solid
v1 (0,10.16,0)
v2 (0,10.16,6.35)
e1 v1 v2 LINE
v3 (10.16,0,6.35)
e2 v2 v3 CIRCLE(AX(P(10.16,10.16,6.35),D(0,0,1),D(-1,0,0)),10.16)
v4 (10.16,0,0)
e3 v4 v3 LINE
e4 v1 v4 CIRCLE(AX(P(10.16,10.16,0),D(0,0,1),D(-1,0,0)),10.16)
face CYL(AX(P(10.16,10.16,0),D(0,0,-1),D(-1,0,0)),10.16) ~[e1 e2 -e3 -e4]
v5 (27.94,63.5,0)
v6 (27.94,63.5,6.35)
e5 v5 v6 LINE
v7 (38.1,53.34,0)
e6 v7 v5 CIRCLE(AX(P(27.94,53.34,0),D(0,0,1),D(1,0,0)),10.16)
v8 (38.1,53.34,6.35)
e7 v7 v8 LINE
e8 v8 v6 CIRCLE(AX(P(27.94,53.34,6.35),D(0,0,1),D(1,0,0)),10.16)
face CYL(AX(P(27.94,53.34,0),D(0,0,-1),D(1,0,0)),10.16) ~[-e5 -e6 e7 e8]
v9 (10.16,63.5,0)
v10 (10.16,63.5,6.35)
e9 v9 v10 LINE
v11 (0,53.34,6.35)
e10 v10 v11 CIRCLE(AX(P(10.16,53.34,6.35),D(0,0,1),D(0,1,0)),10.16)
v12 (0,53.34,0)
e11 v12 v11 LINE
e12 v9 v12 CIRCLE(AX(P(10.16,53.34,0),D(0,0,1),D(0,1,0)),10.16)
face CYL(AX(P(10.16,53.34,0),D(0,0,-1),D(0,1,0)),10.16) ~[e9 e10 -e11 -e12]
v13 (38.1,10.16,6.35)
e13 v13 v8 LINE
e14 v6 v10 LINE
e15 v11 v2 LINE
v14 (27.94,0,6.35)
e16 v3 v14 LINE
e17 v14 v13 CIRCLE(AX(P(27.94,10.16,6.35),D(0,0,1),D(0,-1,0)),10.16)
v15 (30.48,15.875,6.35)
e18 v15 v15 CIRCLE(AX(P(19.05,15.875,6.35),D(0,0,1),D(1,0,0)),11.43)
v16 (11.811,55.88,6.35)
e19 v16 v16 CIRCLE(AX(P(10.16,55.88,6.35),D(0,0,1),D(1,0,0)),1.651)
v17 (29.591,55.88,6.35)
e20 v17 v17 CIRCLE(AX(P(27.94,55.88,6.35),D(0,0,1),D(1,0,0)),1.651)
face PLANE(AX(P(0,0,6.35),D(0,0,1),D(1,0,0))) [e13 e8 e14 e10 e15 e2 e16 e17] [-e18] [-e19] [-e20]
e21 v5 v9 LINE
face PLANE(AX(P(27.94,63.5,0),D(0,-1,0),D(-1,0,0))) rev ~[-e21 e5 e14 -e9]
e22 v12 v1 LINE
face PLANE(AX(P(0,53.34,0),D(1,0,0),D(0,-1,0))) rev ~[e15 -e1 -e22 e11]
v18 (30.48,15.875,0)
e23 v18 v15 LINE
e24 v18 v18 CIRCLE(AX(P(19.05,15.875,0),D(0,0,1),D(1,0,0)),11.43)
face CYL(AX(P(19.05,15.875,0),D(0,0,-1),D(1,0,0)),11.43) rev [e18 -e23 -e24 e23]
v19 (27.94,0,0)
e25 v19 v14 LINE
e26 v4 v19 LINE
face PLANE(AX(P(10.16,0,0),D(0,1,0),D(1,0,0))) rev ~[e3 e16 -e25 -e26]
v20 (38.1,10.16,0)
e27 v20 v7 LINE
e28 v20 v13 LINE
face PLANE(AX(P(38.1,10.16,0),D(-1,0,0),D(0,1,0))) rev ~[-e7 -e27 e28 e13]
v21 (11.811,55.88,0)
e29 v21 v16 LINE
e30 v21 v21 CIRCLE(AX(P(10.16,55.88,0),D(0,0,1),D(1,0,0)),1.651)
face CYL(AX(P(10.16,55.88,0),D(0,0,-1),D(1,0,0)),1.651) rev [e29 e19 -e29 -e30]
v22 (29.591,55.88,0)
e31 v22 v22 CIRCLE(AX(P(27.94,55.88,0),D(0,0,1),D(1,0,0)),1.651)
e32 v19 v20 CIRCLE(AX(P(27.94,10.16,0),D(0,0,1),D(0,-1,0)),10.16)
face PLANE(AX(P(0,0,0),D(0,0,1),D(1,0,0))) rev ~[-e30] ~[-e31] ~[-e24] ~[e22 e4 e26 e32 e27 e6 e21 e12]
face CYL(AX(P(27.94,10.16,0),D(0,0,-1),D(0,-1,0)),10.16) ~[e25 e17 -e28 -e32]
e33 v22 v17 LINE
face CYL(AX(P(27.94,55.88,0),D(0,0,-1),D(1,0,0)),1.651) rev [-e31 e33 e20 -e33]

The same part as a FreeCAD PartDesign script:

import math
import FreeCAD as App
import Part
import Sketcher

V = App.Vector
Q = App.Units.Quantity

doc = App.newDocument("Part")
body = doc.addObject("PartDesign::Body", "Body")

sketch1 = body.newObject("Sketcher::SketchObject", "Sketch")
sketch1.AttachmentSupport = (doc.getObject("XY_Plane"), [""])
sketch1.MapMode = "FlatFace"
sketch1.addGeometry(Part.ArcOfCircle(Part.Circle(V(10.2, 10.2, 0), V(0, 0, 1), 10.2), math.radians(180), math.radians(270)), False)
sketch1.addGeometry(Part.LineSegment(V(10.2, 0, 0), V(27.9, 0, 0)), False)
sketch1.addGeometry(Part.ArcOfCircle(Part.Circle(V(27.9, 10.2, 0), V(0, 0, 1), 10.2), math.radians(-90), math.radians(0)), False)
sketch1.addGeometry(Part.LineSegment(V(38.1, 10.2, 0), V(38.1, 53.3, 0)), False)
sketch1.addGeometry(Part.ArcOfCircle(Part.Circle(V(27.9, 53.3, 0), V(0, 0, 1), 10.2), math.radians(0), math.radians(90)), False)
sketch1.addGeometry(Part.LineSegment(V(27.9, 63.5, 0), V(10.2, 63.5, 0)), False)
sketch1.addGeometry(Part.ArcOfCircle(Part.Circle(V(10.2, 53.3, 0), V(0, 0, 1), 10.2), math.radians(90), math.radians(180)), False)
sketch1.addGeometry(Part.LineSegment(V(0, 53.3, 0), V(0, 10.2, 0)), False)
sketch1.addGeometry(Part.Circle(V(19.1, 15.9, 0), V(0, 0, 1), 11.4), False)
sketch1.addGeometry(Part.Circle(V(10.2, 55.9, 0), V(0, 0, 1), 1.7), False)
sketch1.addGeometry(Part.Circle(V(27.9, 55.9, 0), V(0, 0, 1), 1.7), False)
sketch1.addConstraint(Sketcher.Constraint("Tangent", 0, 2, 1, 1))
sketch1.addConstraint(Sketcher.Constraint("Tangent", 1, 2, 2, 1))
sketch1.addConstraint(Sketcher.Constraint("Tangent", 2, 2, 3, 1))
sketch1.addConstraint(Sketcher.Constraint("Tangent", 3, 2, 4, 1))
sketch1.addConstraint(Sketcher.Constraint("Tangent", 4, 2, 5, 1))
sketch1.addConstraint(Sketcher.Constraint("Tangent", 5, 2, 6, 1))
sketch1.addConstraint(Sketcher.Constraint("Tangent", 6, 2, 7, 1))
sketch1.addConstraint(Sketcher.Constraint("Tangent", 7, 2, 0, 1))
sketch1.addConstraint(Sketcher.Constraint("Horizontal", 1))
sketch1.addConstraint(Sketcher.Constraint("Vertical", 3))
sketch1.addConstraint(Sketcher.Constraint("Horizontal", 5))
sketch1.addConstraint(Sketcher.Constraint("Vertical", 7))
sketch1.addConstraint(Sketcher.Constraint("Equal", 0, 2))
sketch1.addConstraint(Sketcher.Constraint("Equal", 2, 4))
sketch1.addConstraint(Sketcher.Constraint("Equal", 4, 6))
sketch1.addConstraint(Sketcher.Constraint("Equal", 9, 10))
sketch1.addConstraint(Sketcher.Constraint("PointOnObject", 0, 2, -1))
sketch1.addConstraint(Sketcher.Constraint("PointOnObject", 6, 2, -2))
sketch1.addConstraint(Sketcher.Constraint("Horizontal", 9, 3, 10, 3))
sketch1.addConstraint(Sketcher.Constraint("Vertical", 6, 3, 9, 3))
sketch1.addConstraint(Sketcher.Constraint("Vertical", 4, 3, 10, 3))
sketch1.addConstraint(Sketcher.Constraint("Diameter", 8, Q("0.9 in")))
sketch1.addConstraint(Sketcher.Constraint("Radius", 0, Q("0.4 in")))
sketch1.addConstraint(Sketcher.Constraint("Diameter", 9, Q("0.13 in")))
sketch1.addConstraint(Sketcher.Constraint("DistanceX", -1, 1, 2, 2, Q("1.5 in")))
sketch1.addConstraint(Sketcher.Constraint("DistanceY", -1, 1, 4, 2, Q("2.5 in")))
sketch1.addConstraint(Sketcher.Constraint("DistanceY", 10, 3, 4, 2, Q("0.3 in")))
sketch1.addConstraint(Sketcher.Constraint("DistanceX", -1, 1, 8, 3, Q("0.75 in")))
sketch1.addConstraint(Sketcher.Constraint("DistanceY", -1, 1, 8, 3, Q("0.625 in")))
pad1 = body.newObject("PartDesign::Pad", "Pad")
pad1.Profile = sketch1
pad1.Length = Q("0.25 in")

doc.recompute()
